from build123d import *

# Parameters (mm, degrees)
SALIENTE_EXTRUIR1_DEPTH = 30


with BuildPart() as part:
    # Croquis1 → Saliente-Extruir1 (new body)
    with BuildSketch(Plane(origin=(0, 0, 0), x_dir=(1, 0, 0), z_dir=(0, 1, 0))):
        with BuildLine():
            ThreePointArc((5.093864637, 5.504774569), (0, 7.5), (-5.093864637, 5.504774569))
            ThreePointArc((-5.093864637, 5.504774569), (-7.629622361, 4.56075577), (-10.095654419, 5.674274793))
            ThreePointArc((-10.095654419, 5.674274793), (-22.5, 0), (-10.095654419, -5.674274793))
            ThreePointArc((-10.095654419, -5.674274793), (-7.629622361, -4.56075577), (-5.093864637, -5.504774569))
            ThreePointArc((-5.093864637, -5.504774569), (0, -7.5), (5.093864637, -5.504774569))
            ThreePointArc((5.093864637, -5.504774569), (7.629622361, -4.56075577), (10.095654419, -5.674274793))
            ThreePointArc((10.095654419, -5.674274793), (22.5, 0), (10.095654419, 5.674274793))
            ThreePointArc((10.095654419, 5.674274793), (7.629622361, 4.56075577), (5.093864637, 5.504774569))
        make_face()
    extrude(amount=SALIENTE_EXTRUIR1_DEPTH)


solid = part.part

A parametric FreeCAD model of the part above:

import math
import FreeCAD as App
import Part
import Sketcher

V = App.Vector
Q = App.Units.Quantity

doc = App.newDocument("Part")
body = doc.addObject("PartDesign::Body", "Body")

sketch1 = body.newObject("Sketcher::SketchObject", "Sketch")
sketch1.AttachmentSupport = (doc.getObject("XZ_Plane"), [""])
sketch1.MapMode = "FlatFace"
sketch1.addGeometry(Part.ArcOfCircle(Part.Circle(V(0, 0, 0), V(0, 0, 1), 7.5), math.radians(-133), math.radians(-47)), False)
sketch1.addGeometry(Part.ArcOfCircle(Part.Circle(V(-7.5, -8.1, 0), V(0, 0, 1), 3.6), math.radians(47), math.radians(137)), False)
sketch1.addGeometry(Part.ArcOfCircle(Part.Circle(V(-15, 0, 0), V(0, 0, 1), 7.5), math.radians(49), math.radians(311)), False)
sketch1.addGeometry(Part.ArcOfCircle(Part.Circle(V(-7.5, 8.1, 0), V(0, 0, 1), 3.6), math.radians(-137), math.radians(-47)), False)
sketch1.addGeometry(Part.ArcOfCircle(Part.Circle(V(0, 0, 0), V(0, 0, 1), 7.5), math.radians(47), math.radians(133)), False)
sketch1.addGeometry(Part.ArcOfCircle(Part.Circle(V(7.5, 8.1, 0), V(0, 0, 1), 3.6), math.radians(-133), math.radians(-43)), False)
sketch1.addGeometry(Part.ArcOfCircle(Part.Circle(V(15, 0, 0), V(0, 0, 1), 7.5), math.radians(-131), math.radians(131)), False)
sketch1.addGeometry(Part.ArcOfCircle(Part.Circle(V(7.5, -8.1, 0), V(0, 0, 1), 3.6), math.radians(43), math.radians(133)), False)
sketch1.addConstraint(Sketcher.Constraint("Tangent", 0, 1, 1, 1))
sketch1.addConstraint(Sketcher.Constraint("Coincident", 1, 2, 2, 2))
sketch1.addConstraint(Sketcher.Constraint("Coincident", 2, 1, 3, 1))
sketch1.addConstraint(Sketcher.Constraint("Tangent", 3, 2, 4, 2))
sketch1.addConstraint(Sketcher.Constraint("Tangent", 4, 1, 5, 1))
sketch1.addConstraint(Sketcher.Constraint("Coincident", 5, 2, 6, 2))
sketch1.addConstraint(Sketcher.Constraint("Coincident", 6, 1, 7, 1))
sketch1.addConstraint(Sketcher.Constraint("Tangent", 7, 2, 0, 2))
sketch1.addConstraint(Sketcher.Constraint("Coincident", 0, 3, -1, 1))
sketch1.addConstraint(Sketcher.Constraint("Coincident", 4, 3, -1, 1))
sketch1.addConstraint(Sketcher.Constraint("Equal", 0, 2))
sketch1.addConstraint(Sketcher.Constraint("Equal", 1, 3))
sketch1.addConstraint(Sketcher.Constraint("Equal", 2, 4))
sketch1.addConstraint(Sketcher.Constraint("Equal", 3, 5))
sketch1.addConstraint(Sketcher.Constraint("Equal", 4, 6))
sketch1.addConstraint(Sketcher.Constraint("Equal", 5, 7))
sketch1.addConstraint(Sketcher.Constraint("Symmetric", 2, 3, 6, 3, -1, 1))
sketch1.addConstraint(Sketcher.Constraint("Symmetric", 2, 1, 5, 2, -2))
sketch1.addConstraint(Sketcher.Constraint("Horizontal", 1, 3, 7, 3))
sketch1.addConstraint(Sketcher.Constraint("Vertical", 1, 3, 3, 3))
sketch1.addConstraint(Sketcher.Constraint("Radius", 0, Q("7.5 mm")))
sketch1.addConstraint(Sketcher.Constraint("DistanceX", 2, 3, -1, 1, Q("15 mm")))
sketch1.addConstraint(Sketcher.Constraint("Radius", 1, Q("3.556211 mm")))
sketch1.addConstraint(Sketcher.Constraint("DistanceY", 1, 2, 0, 1, Q("0.1695 mm")))
pad1 = body.newObject("PartDesign::Pad", "Pad")
pad1.Profile = sketch1
pad1.Length = 30
pad1.Reversed = True

doc.recompute()
